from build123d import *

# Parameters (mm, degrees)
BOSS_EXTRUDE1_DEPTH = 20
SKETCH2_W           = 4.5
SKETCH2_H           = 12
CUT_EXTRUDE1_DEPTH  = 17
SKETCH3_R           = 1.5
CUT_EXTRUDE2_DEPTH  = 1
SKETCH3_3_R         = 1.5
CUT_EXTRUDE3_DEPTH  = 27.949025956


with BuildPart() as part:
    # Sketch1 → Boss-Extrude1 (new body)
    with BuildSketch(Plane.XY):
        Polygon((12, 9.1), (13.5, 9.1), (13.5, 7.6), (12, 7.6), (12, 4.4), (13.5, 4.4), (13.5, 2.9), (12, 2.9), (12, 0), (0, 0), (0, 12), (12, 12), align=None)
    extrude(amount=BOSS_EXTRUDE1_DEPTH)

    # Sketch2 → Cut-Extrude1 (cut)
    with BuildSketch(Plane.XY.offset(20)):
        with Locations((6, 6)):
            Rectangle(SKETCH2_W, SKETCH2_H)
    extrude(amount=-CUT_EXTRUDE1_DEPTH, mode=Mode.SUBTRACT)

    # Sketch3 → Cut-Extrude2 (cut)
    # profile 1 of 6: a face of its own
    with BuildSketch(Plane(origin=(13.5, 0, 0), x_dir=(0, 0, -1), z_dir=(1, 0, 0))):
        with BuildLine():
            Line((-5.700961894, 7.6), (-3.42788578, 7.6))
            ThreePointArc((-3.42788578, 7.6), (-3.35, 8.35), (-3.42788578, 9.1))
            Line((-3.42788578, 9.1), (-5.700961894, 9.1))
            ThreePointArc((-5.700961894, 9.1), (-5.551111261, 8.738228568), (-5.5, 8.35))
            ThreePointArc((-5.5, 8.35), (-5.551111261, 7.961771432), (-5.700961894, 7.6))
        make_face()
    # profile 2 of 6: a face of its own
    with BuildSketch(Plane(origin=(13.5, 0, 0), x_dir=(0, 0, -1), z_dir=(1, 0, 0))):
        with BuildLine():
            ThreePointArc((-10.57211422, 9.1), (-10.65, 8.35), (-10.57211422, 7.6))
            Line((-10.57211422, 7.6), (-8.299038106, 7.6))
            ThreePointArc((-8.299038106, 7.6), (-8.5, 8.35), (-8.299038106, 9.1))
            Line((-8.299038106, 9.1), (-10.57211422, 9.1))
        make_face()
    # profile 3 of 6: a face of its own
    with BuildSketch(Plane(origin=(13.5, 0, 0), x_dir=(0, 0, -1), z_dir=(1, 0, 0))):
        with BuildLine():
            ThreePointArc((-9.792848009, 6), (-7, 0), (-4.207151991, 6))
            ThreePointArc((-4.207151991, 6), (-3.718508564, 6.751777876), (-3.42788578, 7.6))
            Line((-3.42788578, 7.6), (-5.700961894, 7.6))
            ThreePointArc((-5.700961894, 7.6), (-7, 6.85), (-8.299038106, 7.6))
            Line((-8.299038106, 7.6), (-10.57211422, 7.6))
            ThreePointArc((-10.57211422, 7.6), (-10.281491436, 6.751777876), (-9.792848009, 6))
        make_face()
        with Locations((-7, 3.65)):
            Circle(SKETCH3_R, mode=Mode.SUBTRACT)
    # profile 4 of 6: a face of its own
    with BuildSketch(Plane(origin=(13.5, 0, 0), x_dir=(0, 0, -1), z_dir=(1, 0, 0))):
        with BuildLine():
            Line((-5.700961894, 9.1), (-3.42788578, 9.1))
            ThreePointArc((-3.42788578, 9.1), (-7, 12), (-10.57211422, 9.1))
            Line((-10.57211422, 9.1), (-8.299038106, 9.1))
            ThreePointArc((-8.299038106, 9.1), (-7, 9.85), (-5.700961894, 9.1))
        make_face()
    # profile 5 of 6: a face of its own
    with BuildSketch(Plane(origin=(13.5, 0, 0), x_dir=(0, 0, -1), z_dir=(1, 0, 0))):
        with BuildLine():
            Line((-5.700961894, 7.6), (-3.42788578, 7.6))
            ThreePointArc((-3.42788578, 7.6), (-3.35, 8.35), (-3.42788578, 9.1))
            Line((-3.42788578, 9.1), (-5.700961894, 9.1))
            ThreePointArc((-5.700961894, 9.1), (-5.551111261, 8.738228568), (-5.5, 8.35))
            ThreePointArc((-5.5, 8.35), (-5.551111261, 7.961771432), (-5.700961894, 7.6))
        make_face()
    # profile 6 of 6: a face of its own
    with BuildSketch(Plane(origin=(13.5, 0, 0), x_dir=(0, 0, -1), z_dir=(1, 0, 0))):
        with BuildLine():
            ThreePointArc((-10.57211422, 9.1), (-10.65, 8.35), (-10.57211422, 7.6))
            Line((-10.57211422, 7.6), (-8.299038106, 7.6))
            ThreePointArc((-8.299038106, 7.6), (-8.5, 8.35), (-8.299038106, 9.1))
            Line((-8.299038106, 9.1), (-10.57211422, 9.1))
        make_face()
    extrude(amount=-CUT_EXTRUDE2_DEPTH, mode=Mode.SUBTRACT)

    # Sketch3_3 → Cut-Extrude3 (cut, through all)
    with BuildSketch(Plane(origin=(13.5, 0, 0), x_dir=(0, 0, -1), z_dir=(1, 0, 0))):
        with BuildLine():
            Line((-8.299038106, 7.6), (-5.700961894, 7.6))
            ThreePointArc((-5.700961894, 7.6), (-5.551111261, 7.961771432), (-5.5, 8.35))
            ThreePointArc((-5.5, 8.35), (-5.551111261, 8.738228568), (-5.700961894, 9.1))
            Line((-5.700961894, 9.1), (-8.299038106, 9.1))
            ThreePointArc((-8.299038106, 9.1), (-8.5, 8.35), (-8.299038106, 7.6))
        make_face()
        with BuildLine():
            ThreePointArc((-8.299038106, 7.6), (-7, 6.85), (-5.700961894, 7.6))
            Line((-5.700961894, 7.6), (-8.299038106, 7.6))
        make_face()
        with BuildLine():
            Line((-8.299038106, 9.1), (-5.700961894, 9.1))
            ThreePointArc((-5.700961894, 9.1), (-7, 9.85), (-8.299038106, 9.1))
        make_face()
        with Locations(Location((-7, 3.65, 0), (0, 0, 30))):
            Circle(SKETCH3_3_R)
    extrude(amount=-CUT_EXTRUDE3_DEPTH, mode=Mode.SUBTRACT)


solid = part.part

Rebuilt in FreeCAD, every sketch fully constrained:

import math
import FreeCAD as App
import Part
import Sketcher
Q = App.Units.Quantity


def add_polygon(sketch, points):
    """Adds a closed chain of lines whose ends are joined by coincident constraints."""
    first, n = sketch.GeometryCount, len(points)
    for a, b in zip(points, points[1:] + points[:1]):
        sketch.addGeometry(Part.LineSegment(App.Vector(*a, 0), App.Vector(*b, 0)), False)
    for i in range(n):
        sketch.addConstraint(Sketcher.Constraint("Coincident", first + i, 2, first + (i + 1) % n, 1))

doc = App.newDocument("Part")
params = doc.addObject("Spreadsheet::Sheet", "Params")
for row, (alias, value) in enumerate([
    ("sketch1_width", "12 mm"),
    ("sketch1_width2", "1.5 mm"),
    ("sketch1_height", "2.9 mm"),
    ("pad1_length", "20 mm"),
    ("sketch2_height", "12 mm"),
    ("sketch2_width", "4.5 mm"),
    ("pocket1_length", "17 mm"),
    ("sketch3_diameter", "3 mm"),
    ("sketch3_radius", "3.65 mm"),
    ("pocket2_length", "1 mm"),
    ("sketch4_diameter", "3 mm"),
], start=1):
    params.set(f"A{row}", alias)
    params.set(f"B{row}", "=" + value)
    params.setAlias(f"B{row}", alias)

body = doc.addObject("PartDesign::Body", "Body")

# Sketch on XY plane
sketch1 = doc.addObject("Sketcher::SketchObject", "Sketch")
body.addObject(sketch1)
sketch1.AttachmentSupport = (doc.XY_Plane, [""])
sketch1.MapMode = "FlatFace"
add_polygon(sketch1, [(13.5, 9.1), (12, 9.1), (12, 12), (0, 12), (0, 0), (12, 0), (12, 2.9), (13.5, 2.9), (13.5, 4.4), (12, 4.4), (12, 7.6), (13.5, 7.6)])  # lines 0-11
sketch1.addConstraint(Sketcher.Constraint("Horizontal", 0))
sketch1.addConstraint(Sketcher.Constraint("Vertical", 1))
sketch1.addConstraint(Sketcher.Constraint("Horizontal", 2))
sketch1.addConstraint(Sketcher.Constraint("Vertical", 3))
sketch1.addConstraint(Sketcher.Constraint("Horizontal", 4))
sketch1.addConstraint(Sketcher.Constraint("Vertical", 5))
sketch1.addConstraint(Sketcher.Constraint("Horizontal", 6))
sketch1.addConstraint(Sketcher.Constraint("Vertical", 7))
sketch1.addConstraint(Sketcher.Constraint("Horizontal", 8))
sketch1.addConstraint(Sketcher.Constraint("Vertical", 9))
sketch1.addConstraint(Sketcher.Constraint("Horizontal", 10))
sketch1.addConstraint(Sketcher.Constraint("Vertical", 11))
sketch1.addConstraint(Sketcher.Constraint("Coincident", 3, 2, -1, 1))
sketch1.addConstraint(Sketcher.Constraint("Vertical", 1, 2, 4, 2))
sketch1.addConstraint(Sketcher.Constraint("Vertical", 5, 2, 8, 2))
sketch1.addConstraint(Sketcher.Constraint("Vertical", 7, 2, 10, 2))
sketch1.addConstraint(Sketcher.Constraint("Equal", 4, 3))
sketch1.addConstraint(Sketcher.Constraint("Equal", 1, 5))
sketch1.addConstraint(Sketcher.Constraint("Equal", 10, 7))
sketch1.addConstraint(Sketcher.Constraint("Equal", 7, 11))
sketch1.addConstraint(Sketcher.Constraint("DistanceX", 2, 2, 2, 1, Q("12 mm")))
sketch1.addConstraint(Sketcher.Constraint("DistanceX", 0, 2, 0, 1, Q("1.5 mm")))
sketch1.addConstraint(Sketcher.Constraint("DistanceY", 1, 1, 1, 2, Q("2.9 mm")))
sketch1.setExpression("Constraints[32]", "Params.sketch1_width")
sketch1.setExpression("Constraints[33]", "Params.sketch1_width2")
sketch1.setExpression("Constraints[34]", "Params.sketch1_height")
pad1 = doc.addObject("PartDesign::Pad", "Pad")
body.addObject(pad1)
pad1.Profile = sketch1
pad1.setExpression("Length", "Params.pad1_length")

# Sketch on XY plane
sketch2 = doc.addObject("Sketcher::SketchObject", "Sketch001")
body.addObject(sketch2)
sketch2.AttachmentSupport = (doc.XY_Plane, [""])
sketch2.MapMode = "FlatFace"
sketch2.AttachmentOffset = App.Placement(App.Vector(0, 0, 20), App.Rotation())
add_polygon(sketch2, [(3.8, 12), (3.8, 0), (8.2, 0), (8.2, 12)])  # lines 0-3
sketch2.addConstraint(Sketcher.Constraint("Vertical", 0))
sketch2.addConstraint(Sketcher.Constraint("Horizontal", 1))
sketch2.addConstraint(Sketcher.Constraint("Vertical", 2))
sketch2.addConstraint(Sketcher.Constraint("Horizontal", 3))
sketch2.addConstraint(Sketcher.Constraint("PointOnObject", 0, 2, -1))
sketch2.addConstraint(Sketcher.Constraint("DistanceY", 0, 2, 0, 1, Q("12 mm")))
sketch2.addConstraint(Sketcher.Constraint("DistanceX", 1, 1, 1, 2, Q("4.5 mm")))
sketch2.addConstraint(Sketcher.Constraint("DistanceX", -1, 1, 0, 2, Q("3.75 mm")))
sketch2.setExpression("Constraints[9]", "Params.sketch2_height")
sketch2.setExpression("Constraints[10]", "Params.sketch2_width")
pocket1 = doc.addObject("PartDesign::Pocket", "Pocket")
body.addObject(pocket1)
pocket1.Profile = sketch2
pocket1.setExpression("Length", "Params.pocket1_length")

# Sketch on YZ plane
sketch3 = doc.addObject("Sketcher::SketchObject", "Sketch002")
body.addObject(sketch3)
sketch3.AttachmentSupport = (doc.YZ_Plane, [""])
sketch3.MapMode = "FlatFace"
sketch3.AttachmentOffset = App.Placement(App.Vector(0, 0, 13.5), App.Rotation())
sketch3.addGeometry(Part.ArcOfCircle(Part.Circle(App.Vector(8.3, 7, 0), App.Vector(0, 0, 1), 3.7), math.radians(-102), math.radians(-78)), False)
sketch3.addGeometry(Part.ArcOfCircle(Part.Circle(App.Vector(8.3, 7, 0), App.Vector(0, 0, 1), 3.6), math.radians(-78), math.radians(78)), False)
sketch3.addGeometry(Part.ArcOfCircle(Part.Circle(App.Vector(8.3, 7, 0), App.Vector(0, 0, 1), 3.7), math.radians(78), math.radians(102)), False)
sketch3.addGeometry(Part.ArcOfCircle(Part.Circle(App.Vector(8.3, 7, 0), App.Vector(0, 0, 1), 3.6), math.radians(102), math.radians(130)), False)
sketch3.addGeometry(Part.ArcOfCircle(Part.Circle(App.Vector(3.6, 7, 0), App.Vector(0, 0, 1), 3.6), math.radians(50), math.radians(310)), False)
sketch3.addGeometry(Part.ArcOfCircle(Part.Circle(App.Vector(8.3, 7, 0), App.Vector(0, 0, 1), 3.6), math.radians(-130), math.radians(-102)), False)
sketch3.addGeometry(Part.ArcOfCircle(Part.Circle(App.Vector(8.3, 7, 0), App.Vector(0, 0, 1), 1.5), math.radians(-90), math.radians(-60)), False)
sketch3.addGeometry(Part.ArcOfCircle(Part.Circle(App.Vector(8.4, 7, 0), App.Vector(0, 0, 1), 1.5), math.radians(-120), math.radians(-90)), False)
sketch3.addGeometry(Part.ArcOfCircle(Part.Circle(App.Vector(8.4, 7, 0), App.Vector(0, 0, 1), 1.5), math.radians(120), math.radians(240)), False)
sketch3.addGeometry(Part.ArcOfCircle(Part.Circle(App.Vector(8.3, 7, 0), App.Vector(0, 0, 1), 1.5), math.radians(60), math.radians(120)), False)
sketch3.addGeometry(Part.ArcOfCircle(Part.Circle(App.Vector(8.3, 7, 0), App.Vector(0, 0, 1), 1.5), math.radians(-60), math.radians(60)), False)
sketch3.addGeometry(Part.Circle(App.Vector(3.6, 7, 0), App.Vector(0, 0, 1), 1.5), False)
sketch3.addConstraint(Sketcher.Constraint("Tangent", 0, 2, 1, 1))
sketch3.addConstraint(Sketcher.Constraint("Tangent", 1, 2, 2, 1))
sketch3.addConstraint(Sketcher.Constraint("Tangent", 2, 2, 3, 1))
sketch3.addConstraint(Sketcher.Constraint("Coincident", 3, 2, 4, 1))
sketch3.addConstraint(Sketcher.Constraint("Coincident", 4, 2, 5, 1))
sketch3.addConstraint(Sketcher.Constraint("Tangent", 5, 2, 0, 1))
sketch3.addConstraint(Sketcher.Constraint("Tangent", 6, 1, 7, 2))
sketch3.addConstraint(Sketcher.Constraint("Tangent", 7, 1, 8, 2))
sketch3.addConstraint(Sketcher.Constraint("Tangent", 8, 1, 9, 2))
sketch3.addConstraint(Sketcher.Constraint("Tangent", 9, 1, 10, 2))
sketch3.addConstraint(Sketcher.Constraint("Tangent", 10, 1, 6, 2))
sketch3.addConstraint(Sketcher.Constraint("Coincident", 2, 3, 0, 3))
sketch3.addConstraint(Sketcher.Constraint("Coincident", 6, 3, 0, 3))
sketch3.addConstraint(Sketcher.Constraint("Coincident", 8, 3, 0, 3))
sketch3.addConstraint(Sketcher.Constraint("Coincident", 11, 3, 4, 3))
sketch3.addConstraint(Sketcher.Constraint("Equal", 2, 3))
sketch3.addConstraint(Sketcher.Constraint("Equal", 3, 4))
sketch3.addConstraint(Sketcher.Constraint("Equal", 4, 5))
sketch3.addConstraint(Sketcher.Constraint("Equal", 10, 11))
sketch3.addConstraint(Sketcher.Constraint("Horizontal", 3, 3, 4, 3))
sketch3.addConstraint(Sketcher.Constraint("Horizontal", 1, 2, 2, 2))
sketch3.addConstraint(Sketcher.Constraint("Horizontal", 0, 2, 5, 2))
sketch3.addConstraint(Sketcher.Constraint("Horizontal", 8, 1, 9, 1))
sketch3.addConstraint(Sketcher.Constraint("Horizontal", 7, 1, 10, 1))
sketch3.addConstraint(Sketcher.Constraint("Vertical", 0, 2, 1, 2))
sketch3.addConstraint(Sketcher.Constraint("Vertical", 10, 3, 6, 1))
sketch3.addConstraint(Sketcher.Constraint("Vertical", 5, 2, 7, 1))
sketch3.addConstraint(Sketcher.Constraint("Vertical", 7, 1, 8, 1))
sketch3.addConstraint(Sketcher.Constraint("Diameter", 11, Q("3 mm")))
sketch3.addConstraint(Sketcher.Constraint("Radius", 0, Q("3.65 mm")))
sketch3.addConstraint(Sketcher.Constraint("DistanceY", -1, 1, 0, 3, Q("7 mm")))
sketch3.addConstraint(Sketcher.Constraint("DistanceX", -1, 1, 3, 2, Q("6 mm")))
sketch3.addConstraint(Sketcher.Constraint("DistanceX", -1, 1, 0, 2, Q("9.1 mm")))
sketch3.addConstraint(Sketcher.Constraint("DistanceX", -1, 1, 2, 2, Q("7.6 mm")))
sketch3.setExpression("Constraints[28]", "Params.sketch3_diameter")
sketch3.setExpression("Constraints[29]", "Params.sketch3_radius")
pocket2 = doc.addObject("PartDesign::Pocket", "Pocket001")
body.addObject(pocket2)
pocket2.Profile = sketch3
pocket2.setExpression("Length", "Params.pocket2_length")

# Sketch on YZ plane
sketch4 = doc.addObject("Sketcher::SketchObject", "Sketch003")
body.addObject(sketch4)
sketch4.AttachmentSupport = (doc.YZ_Plane, [""])
sketch4.MapMode = "FlatFace"
sketch4.AttachmentOffset = App.Placement(App.Vector(0, 0, 13.5), App.Rotation())
sketch4.addGeometry(Part.ArcOfCircle(Part.Circle(App.Vector(8.4, 7, 0), App.Vector(0, 0, 1), 1.5), math.radians(-120), math.radians(-90)), False)
sketch4.addGeometry(Part.ArcOfCircle(Part.Circle(App.Vector(8.3, 7, 0), App.Vector(0, 0, 1), 1.5), math.radians(-90), math.radians(-60)), False)
sketch4.addGeometry(Part.ArcOfCircle(Part.Circle(App.Vector(8.3, 7, 0), App.Vector(0, 0, 1), 1.5), math.radians(-60), math.radians(60)), False)
sketch4.addGeometry(Part.ArcOfCircle(Part.Circle(App.Vector(8.3, 7, 0), App.Vector(0, 0, 1), 1.5), math.radians(60), math.radians(120)), False)
sketch4.addGeometry(Part.ArcOfCircle(Part.Circle(App.Vector(8.4, 7, 0), App.Vector(0, 0, 1), 1.5), math.radians(120), math.radians(240)), False)
sketch4.addGeometry(Part.Circle(App.Vector(3.6, 7, 0), App.Vector(0, 0, 1), 1.5), False)
sketch4.addConstraint(Sketcher.Constraint("Tangent", 0, 2, 1, 1))
sketch4.addConstraint(Sketcher.Constraint("Tangent", 1, 2, 2, 1))
sketch4.addConstraint(Sketcher.Constraint("Tangent", 2, 2, 3, 1))
sketch4.addConstraint(Sketcher.Constraint("Tangent", 3, 2, 4, 1))
sketch4.addConstraint(Sketcher.Constraint("Tangent", 4, 2, 0, 1))
sketch4.addConstraint(Sketcher.Constraint("Coincident", 2, 3, 0, 3))
sketch4.addConstraint(Sketcher.Constraint("Equal", 4, 5))
sketch4.addConstraint(Sketcher.Constraint("Horizontal", 4, 3, 5, 3))
sketch4.addConstraint(Sketcher.Constraint("Horizontal", 2, 2, 3, 2))
sketch4.addConstraint(Sketcher.Constraint("Horizontal", 1, 2, 4, 2))
sketch4.addConstraint(Sketcher.Constraint("Vertical", 4, 3, 0, 2))
sketch4.addConstraint(Sketcher.Constraint("Vertical", 1, 2, 2, 2))
sketch4.addConstraint(Sketcher.Constraint("Diameter", 5, Q("3 mm")))
sketch4.addConstraint(Sketcher.Constraint("DistanceY", -1, 1, 0, 3, Q("7 mm")))
sketch4.addConstraint(Sketcher.Constraint("DistanceX", -1, 1, 1, 2, Q("9.1 mm")))
sketch4.addConstraint(Sketcher.Constraint("DistanceX", -1, 1, 3, 2, Q("7.6 mm")))
sketch4.addConstraint(Sketcher.Constraint("DistanceX", 5, 3, 1, 3, Q("4.7 mm")))
sketch4.setExpression("Constraints[12]", "Params.sketch4_diameter")
pocket3 = doc.addObject("PartDesign::Pocket", "Pocket002")
body.addObject(pocket3)
pocket3.Profile = sketch4
pocket3.Type = "ThroughAll"

doc.recompute()
